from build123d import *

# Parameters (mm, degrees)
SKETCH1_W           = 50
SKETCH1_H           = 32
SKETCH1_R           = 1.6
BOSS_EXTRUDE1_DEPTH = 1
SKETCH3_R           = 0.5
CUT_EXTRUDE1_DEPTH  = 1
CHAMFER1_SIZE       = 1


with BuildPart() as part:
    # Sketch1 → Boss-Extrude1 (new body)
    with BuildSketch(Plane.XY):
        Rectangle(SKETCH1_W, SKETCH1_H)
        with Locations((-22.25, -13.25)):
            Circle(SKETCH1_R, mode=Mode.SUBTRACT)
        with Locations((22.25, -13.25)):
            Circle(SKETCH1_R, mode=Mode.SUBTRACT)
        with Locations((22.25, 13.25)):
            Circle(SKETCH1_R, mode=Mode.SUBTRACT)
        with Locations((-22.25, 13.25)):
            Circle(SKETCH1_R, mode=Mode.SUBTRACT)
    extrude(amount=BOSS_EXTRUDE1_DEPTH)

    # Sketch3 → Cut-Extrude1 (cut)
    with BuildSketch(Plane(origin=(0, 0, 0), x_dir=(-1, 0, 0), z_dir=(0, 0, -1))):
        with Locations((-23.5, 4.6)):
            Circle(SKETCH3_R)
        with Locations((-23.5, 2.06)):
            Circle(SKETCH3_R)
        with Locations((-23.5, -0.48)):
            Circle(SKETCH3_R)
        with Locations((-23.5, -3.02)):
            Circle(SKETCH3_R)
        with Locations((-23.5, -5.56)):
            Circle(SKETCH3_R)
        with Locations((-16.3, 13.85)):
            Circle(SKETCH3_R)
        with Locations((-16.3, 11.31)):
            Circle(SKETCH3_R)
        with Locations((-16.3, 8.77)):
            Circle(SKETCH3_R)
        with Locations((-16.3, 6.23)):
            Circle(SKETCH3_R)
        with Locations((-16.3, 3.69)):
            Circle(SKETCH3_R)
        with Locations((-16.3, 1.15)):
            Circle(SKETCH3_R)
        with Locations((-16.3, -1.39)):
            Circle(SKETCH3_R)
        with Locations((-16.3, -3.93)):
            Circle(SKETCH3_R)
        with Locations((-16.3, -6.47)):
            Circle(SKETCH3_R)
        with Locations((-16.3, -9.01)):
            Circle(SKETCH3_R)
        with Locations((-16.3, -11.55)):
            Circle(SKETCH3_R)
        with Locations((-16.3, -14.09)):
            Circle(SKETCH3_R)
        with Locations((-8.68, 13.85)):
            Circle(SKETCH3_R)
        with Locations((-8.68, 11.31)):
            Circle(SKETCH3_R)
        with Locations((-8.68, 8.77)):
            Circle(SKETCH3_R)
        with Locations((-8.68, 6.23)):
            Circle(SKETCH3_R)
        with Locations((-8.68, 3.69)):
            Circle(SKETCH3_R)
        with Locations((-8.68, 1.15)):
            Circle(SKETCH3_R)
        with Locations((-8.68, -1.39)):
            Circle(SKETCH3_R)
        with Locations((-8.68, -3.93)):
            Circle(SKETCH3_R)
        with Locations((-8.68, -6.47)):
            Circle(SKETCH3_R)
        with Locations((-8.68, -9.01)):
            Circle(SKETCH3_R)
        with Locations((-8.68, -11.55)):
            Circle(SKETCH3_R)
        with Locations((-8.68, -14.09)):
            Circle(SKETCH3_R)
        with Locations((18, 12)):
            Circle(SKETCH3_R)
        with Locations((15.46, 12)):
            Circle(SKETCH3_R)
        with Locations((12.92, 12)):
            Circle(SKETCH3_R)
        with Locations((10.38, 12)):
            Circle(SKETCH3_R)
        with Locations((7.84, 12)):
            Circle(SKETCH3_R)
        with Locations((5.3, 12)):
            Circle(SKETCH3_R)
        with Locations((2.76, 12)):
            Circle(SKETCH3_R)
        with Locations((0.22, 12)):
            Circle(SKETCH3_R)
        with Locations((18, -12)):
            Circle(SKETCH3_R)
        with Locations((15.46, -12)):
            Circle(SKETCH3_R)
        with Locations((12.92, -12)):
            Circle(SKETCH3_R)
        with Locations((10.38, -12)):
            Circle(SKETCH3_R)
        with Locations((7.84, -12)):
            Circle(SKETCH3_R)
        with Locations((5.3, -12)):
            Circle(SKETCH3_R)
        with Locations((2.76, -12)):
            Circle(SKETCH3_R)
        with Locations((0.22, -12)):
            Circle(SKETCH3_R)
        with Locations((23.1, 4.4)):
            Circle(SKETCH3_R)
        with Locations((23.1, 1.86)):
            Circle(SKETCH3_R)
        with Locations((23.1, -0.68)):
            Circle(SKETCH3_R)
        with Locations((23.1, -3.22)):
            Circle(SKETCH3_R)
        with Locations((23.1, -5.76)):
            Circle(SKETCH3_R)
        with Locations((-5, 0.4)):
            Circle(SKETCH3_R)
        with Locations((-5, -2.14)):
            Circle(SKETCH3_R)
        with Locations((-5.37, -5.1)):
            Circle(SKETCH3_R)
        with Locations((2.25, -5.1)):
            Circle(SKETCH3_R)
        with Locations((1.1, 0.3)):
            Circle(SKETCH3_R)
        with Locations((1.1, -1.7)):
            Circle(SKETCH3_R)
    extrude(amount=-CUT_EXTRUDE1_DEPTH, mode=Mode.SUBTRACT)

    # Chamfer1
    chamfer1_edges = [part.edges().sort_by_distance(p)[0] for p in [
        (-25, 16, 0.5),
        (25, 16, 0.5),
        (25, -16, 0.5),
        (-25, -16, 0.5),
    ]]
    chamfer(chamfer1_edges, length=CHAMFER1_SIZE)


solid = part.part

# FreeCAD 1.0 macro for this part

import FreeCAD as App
import Part
import Sketcher

V = App.Vector
Q = App.Units.Quantity


def edges_at(feature, points):
    """Names of the edges that pass closest to the given points."""
    edges = feature.Shape.Edges
    near = lambda p: min(range(len(edges)), key=lambda i: edges[i].distToShape(Part.Vertex(*p))[0])
    return sorted({f"Edge{near(p) + 1}" for p in points})

doc = App.newDocument("Part")
body = doc.addObject("PartDesign::Body", "Body")

sketch1 = body.newObject("Sketcher::SketchObject", "Sketch")
sketch1.AttachmentSupport = (doc.getObject("XY_Plane"), [""])
sketch1.MapMode = "FlatFace"
sketch1.addGeometry(Part.LineSegment(V(-25, 16, 0), V(-25, -16, 0)), False)
sketch1.addGeometry(Part.LineSegment(V(-25, -16, 0), V(25, -16, 0)), False)
sketch1.addGeometry(Part.LineSegment(V(25, -16, 0), V(25, 16, 0)), False)
sketch1.addGeometry(Part.LineSegment(V(25, 16, 0), V(-25, 16, 0)), False)
sketch1.addGeometry(Part.Circle(V(-22.2, -13.2, 0), V(0, 0, 1), 1.6), False)
sketch1.addGeometry(Part.Circle(V(22.2, -13.2, 0), V(0, 0, 1), 1.6), False)
sketch1.addGeometry(Part.Circle(V(-22.2, 13.2, 0), V(0, 0, 1), 1.6), False)
sketch1.addGeometry(Part.Circle(V(22.2, 13.2, 0), V(0, 0, 1), 1.6), False)
sketch1.addConstraint(Sketcher.Constraint("Coincident", 0, 2, 1, 1))
sketch1.addConstraint(Sketcher.Constraint("Coincident", 1, 2, 2, 1))
sketch1.addConstraint(Sketcher.Constraint("Coincident", 2, 2, 3, 1))
sketch1.addConstraint(Sketcher.Constraint("Coincident", 3, 2, 0, 1))
sketch1.addConstraint(Sketcher.Constraint("Vertical", 0))
sketch1.addConstraint(Sketcher.Constraint("Horizontal", 1))
sketch1.addConstraint(Sketcher.Constraint("Vertical", 2))
sketch1.addConstraint(Sketcher.Constraint("Horizontal", 3))
sketch1.addConstraint(Sketcher.Constraint("Equal", 4, 5))
sketch1.addConstraint(Sketcher.Constraint("Equal", 5, 6))
sketch1.addConstraint(Sketcher.Constraint("Equal", 6, 7))
sketch1.addConstraint(Sketcher.Constraint("Symmetric", 5, 3, 6, 3, -1, 1))
sketch1.addConstraint(Sketcher.Constraint("Symmetric", 4, 3, 7, 3, -1, 1))
sketch1.addConstraint(Sketcher.Constraint("Symmetric", 0, 2, 2, 2, -1, 1))
sketch1.addConstraint(Sketcher.Constraint("Symmetric", 4, 3, 5, 3, -2))
sketch1.addConstraint(Sketcher.Constraint("Diameter", 4, Q("3.2 mm")))
sketch1.addConstraint(Sketcher.Constraint("DistanceX", 1, 1, 1, 2, Q("50 mm")))
sketch1.addConstraint(Sketcher.Constraint("DistanceY", 0, 2, 0, 1, Q("32 mm")))
sketch1.addConstraint(Sketcher.Constraint("DistanceX", 4, 3, 5, 3, Q("44.5 mm")))
sketch1.addConstraint(Sketcher.Constraint("DistanceY", 4, 3, 6, 3, Q("26.5 mm")))
pad1 = body.newObject("PartDesign::Pad", "Pad")
pad1.Profile = sketch1
pad1.Length = 1

sketch2 = body.newObject("Sketcher::SketchObject", "Sketch001")
sketch2.AttachmentSupport = (doc.getObject("XY_Plane"), [""])
sketch2.MapMode = "FlatFace"
sketch2.addGeometry(Part.Circle(V(23.5, 4.6, 0), V(0, 0, 1), 0.5), False)
sketch2.addGeometry(Part.Circle(V(23.5, 2.1, 0), V(0, 0, 1), 0.5), False)
sketch2.addGeometry(Part.Circle(V(23.5, -0.5, 0), V(0, 0, 1), 0.5), False)
sketch2.addGeometry(Part.Circle(V(23.5, -3, 0), V(0, 0, 1), 0.5), False)
sketch2.addGeometry(Part.Circle(V(23.5, -5.6, 0), V(0, 0, 1), 0.5), False)
sketch2.addGeometry(Part.Circle(V(16.3, 13.8, 0), V(0, 0, 1), 0.5), False)
sketch2.addGeometry(Part.Circle(V(16.3, 11.3, 0), V(0, 0, 1), 0.5), False)
sketch2.addGeometry(Part.Circle(V(16.3, 8.8, 0), V(0, 0, 1), 0.5), False)
sketch2.addGeometry(Part.Circle(V(16.3, 6.2, 0), V(0, 0, 1), 0.5), False)
sketch2.addGeometry(Part.Circle(V(16.3, 3.7, 0), V(0, 0, 1), 0.5), False)
sketch2.addGeometry(Part.Circle(V(16.3, 1.1, 0), V(0, 0, 1), 0.5), False)
sketch2.addGeometry(Part.Circle(V(16.3, -1.4, 0), V(0, 0, 1), 0.5), False)
sketch2.addGeometry(Part.Circle(V(16.3, -3.9, 0), V(0, 0, 1), 0.5), False)
sketch2.addGeometry(Part.Circle(V(16.3, -6.5, 0), V(0, 0, 1), 0.5), False)
sketch2.addGeometry(Part.Circle(V(16.3, -9, 0), V(0, 0, 1), 0.5), False)
sketch2.addGeometry(Part.Circle(V(16.3, -11.6, 0), V(0, 0, 1), 0.5), False)
sketch2.addGeometry(Part.Circle(V(16.3, -14.1, 0), V(0, 0, 1), 0.5), False)
sketch2.addGeometry(Part.Circle(V(8.7, 13.8, 0), V(0, 0, 1), 0.5), False)
sketch2.addGeometry(Part.Circle(V(8.7, 11.3, 0), V(0, 0, 1), 0.5), False)
sketch2.addGeometry(Part.Circle(V(8.7, 8.8, 0), V(0, 0, 1), 0.5), False)
sketch2.addGeometry(Part.Circle(V(8.7, 6.2, 0), V(0, 0, 1), 0.5), False)
sketch2.addGeometry(Part.Circle(V(8.7, 3.7, 0), V(0, 0, 1), 0.5), False)
sketch2.addGeometry(Part.Circle(V(8.7, 1.1, 0), V(0, 0, 1), 0.5), False)
sketch2.addGeometry(Part.Circle(V(8.7, -1.4, 0), V(0, 0, 1), 0.5), False)
sketch2.addGeometry(Part.Circle(V(8.7, -3.9, 0), V(0, 0, 1), 0.5), False)
sketch2.addGeometry(Part.Circle(V(8.7, -6.5, 0), V(0, 0, 1), 0.5), False)
sketch2.addGeometry(Part.Circle(V(8.7, -9, 0), V(0, 0, 1), 0.5), False)
sketch2.addGeometry(Part.Circle(V(8.7, -11.6, 0), V(0, 0, 1), 0.5), False)
sketch2.addGeometry(Part.Circle(V(8.7, -14.1, 0), V(0, 0, 1), 0.5), False)
sketch2.addGeometry(Part.Circle(V(-18, 12, 0), V(0, 0, 1), 0.5), False)
sketch2.addGeometry(Part.Circle(V(-15.5, 12, 0), V(0, 0, 1), 0.5), False)
sketch2.addGeometry(Part.Circle(V(-12.9, 12, 0), V(0, 0, 1), 0.5), False)
sketch2.addGeometry(Part.Circle(V(-10.4, 12, 0), V(0, 0, 1), 0.5), False)
sketch2.addGeometry(Part.Circle(V(-7.8, 12, 0), V(0, 0, 1), 0.5), False)
sketch2.addGeometry(Part.Circle(V(-5.3, 12, 0), V(0, 0, 1), 0.5), False)
sketch2.addGeometry(Part.Circle(V(-2.8, 12, 0), V(0, 0, 1), 0.5), False)
sketch2.addGeometry(Part.Circle(V(-0.2, 12, 0), V(0, 0, 1), 0.5), False)
sketch2.addGeometry(Part.Circle(V(-18, -12, 0), V(0, 0, 1), 0.5), False)
sketch2.addGeometry(Part.Circle(V(-15.5, -12, 0), V(0, 0, 1), 0.5), False)
sketch2.addGeometry(Part.Circle(V(-12.9, -12, 0), V(0, 0, 1), 0.5), False)
sketch2.addGeometry(Part.Circle(V(-10.4, -12, 0), V(0, 0, 1), 0.5), False)
sketch2.addGeometry(Part.Circle(V(-7.8, -12, 0), V(0, 0, 1), 0.5), False)
sketch2.addGeometry(Part.Circle(V(-5.3, -12, 0), V(0, 0, 1), 0.5), False)
sketch2.addGeometry(Part.Circle(V(-2.8, -12, 0), V(0, 0, 1), 0.5), False)
sketch2.addGeometry(Part.Circle(V(-0.2, -12, 0), V(0, 0, 1), 0.5), False)
sketch2.addGeometry(Part.Circle(V(-23.1, 4.4, 0), V(0, 0, 1), 0.5), False)
sketch2.addGeometry(Part.Circle(V(-23.1, 1.9, 0), V(0, 0, 1), 0.5), False)
sketch2.addGeometry(Part.Circle(V(-23.1, -0.7, 0), V(0, 0, 1), 0.5), False)
sketch2.addGeometry(Part.Circle(V(-23.1, -3.2, 0), V(0, 0, 1), 0.5), False)
sketch2.addGeometry(Part.Circle(V(-23.1, -5.8, 0), V(0, 0, 1), 0.5), False)
sketch2.addGeometry(Part.Circle(V(5, 0.4, 0), V(0, 0, 1), 0.5), False)
sketch2.addGeometry(Part.Circle(V(5, -2.1, 0), V(0, 0, 1), 0.5), False)
sketch2.addGeometry(Part.Circle(V(5.4, -5.1, 0), V(0, 0, 1), 0.5), False)
sketch2.addGeometry(Part.Circle(V(-2.2, -5.1, 0), V(0, 0, 1), 0.5), False)
sketch2.addGeometry(Part.Circle(V(-1.1, 0.3, 0), V(0, 0, 1), 0.5), False)
sketch2.addGeometry(Part.Circle(V(-1.1, -1.7, 0), V(0, 0, 1), 0.5), False)
sketch2.addConstraint(Sketcher.Constraint("Equal", 0, 1))
sketch2.addConstraint(Sketcher.Constraint("Equal", 1, 2))
sketch2.addConstraint(Sketcher.Constraint("Equal", 2, 3))
sketch2.addConstraint(Sketcher.Constraint("Equal", 3, 4))
sketch2.addConstraint(Sketcher.Constraint("Equal", 4, 5))
sketch2.addConstraint(Sketcher.Constraint("Equal", 5, 6))
sketch2.addConstraint(Sketcher.Constraint("Equal", 6, 7))
sketch2.addConstraint(Sketcher.Constraint("Equal", 7, 8))
sketch2.addConstraint(Sketcher.Constraint("Equal", 8, 9))
sketch2.addConstraint(Sketcher.Constraint("Equal", 9, 10))
sketch2.addConstraint(Sketcher.Constraint("Equal", 10, 11))
sketch2.addConstraint(Sketcher.Constraint("Equal", 11, 12))
sketch2.addConstraint(Sketcher.Constraint("Equal", 12, 13))
sketch2.addConstraint(Sketcher.Constraint("Equal", 13, 14))
sketch2.addConstraint(Sketcher.Constraint("Equal", 14, 15))
sketch2.addConstraint(Sketcher.Constraint("Equal", 15, 16))
sketch2.addConstraint(Sketcher.Constraint("Equal", 16, 17))
sketch2.addConstraint(Sketcher.Constraint("Equal", 17, 18))
sketch2.addConstraint(Sketcher.Constraint("Equal", 18, 19))
sketch2.addConstraint(Sketcher.Constraint("Equal", 19, 20))
sketch2.addConstraint(Sketcher.Constraint("Equal", 20, 21))
sketch2.addConstraint(Sketcher.Constraint("Equal", 21, 22))
sketch2.addConstraint(Sketcher.Constraint("Equal", 22, 23))
sketch2.addConstraint(Sketcher.Constraint("Equal", 23, 24))
sketch2.addConstraint(Sketcher.Constraint("Equal", 24, 25))
sketch2.addConstraint(Sketcher.Constraint("Equal", 25, 26))
sketch2.addConstraint(Sketcher.Constraint("Equal", 26, 27))
sketch2.addConstraint(Sketcher.Constraint("Equal", 27, 28))
sketch2.addConstraint(Sketcher.Constraint("Equal", 28, 29))
sketch2.addConstraint(Sketcher.Constraint("Equal", 29, 30))
sketch2.addConstraint(Sketcher.Constraint("Equal", 30, 31))
sketch2.addConstraint(Sketcher.Constraint("Equal", 31, 32))
sketch2.addConstraint(Sketcher.Constraint("Equal", 32, 33))
sketch2.addConstraint(Sketcher.Constraint("Equal", 33, 34))
sketch2.addConstraint(Sketcher.Constraint("Equal", 34, 35))
sketch2.addConstraint(Sketcher.Constraint("Equal", 35, 36))
sketch2.addConstraint(Sketcher.Constraint("Equal", 36, 37))
sketch2.addConstraint(Sketcher.Constraint("Equal", 37, 38))
sketch2.addConstraint(Sketcher.Constraint("Equal", 38, 39))
sketch2.addConstraint(Sketcher.Constraint("Equal", 39, 40))
sketch2.addConstraint(Sketcher.Constraint("Equal", 40, 41))
sketch2.addConstraint(Sketcher.Constraint("Equal", 41, 42))
sketch2.addConstraint(Sketcher.Constraint("Equal", 42, 43))
sketch2.addConstraint(Sketcher.Constraint("Equal", 43, 44))
sketch2.addConstraint(Sketcher.Constraint("Equal", 44, 45))
sketch2.addConstraint(Sketcher.Constraint("Equal", 45, 46))
sketch2.addConstraint(Sketcher.Constraint("Equal", 46, 47))
sketch2.addConstraint(Sketcher.Constraint("Equal", 47, 48))
sketch2.addConstraint(Sketcher.Constraint("Equal", 48, 49))
sketch2.addConstraint(Sketcher.Constraint("Equal", 49, 50))
sketch2.addConstraint(Sketcher.Constraint("Equal", 50, 51))
sketch2.addConstraint(Sketcher.Constraint("Equal", 51, 52))
sketch2.addConstraint(Sketcher.Constraint("Equal", 52, 53))
sketch2.addConstraint(Sketcher.Constraint("Equal", 53, 54))
sketch2.addConstraint(Sketcher.Constraint("Equal", 54, 55))
sketch2.addConstraint(Sketcher.Constraint("Symmetric", 29, 3, 37, 3, -1))
sketch2.addConstraint(Sketcher.Constraint("Symmetric", 30, 3, 38, 3, -1))
sketch2.addConstraint(Sketcher.Constraint("Symmetric", 31, 3, 39, 3, -1))
sketch2.addConstraint(Sketcher.Constraint("Symmetric", 32, 3, 40, 3, -1))
sketch2.addConstraint(Sketcher.Constraint("Symmetric", 33, 3, 41, 3, -1))
sketch2.addConstraint(Sketcher.Constraint("Symmetric", 34, 3, 42, 3, -1))
sketch2.addConstraint(Sketcher.Constraint("Symmetric", 35, 3, 43, 3, -1))
sketch2.addConstraint(Sketcher.Constraint("Symmetric", 36, 3, 44, 3, -1))
sketch2.addConstraint(Sketcher.Constraint("Horizontal", 5, 3, 17, 3))
sketch2.addConstraint(Sketcher.Constraint("Horizontal", 6, 3, 18, 3))
sketch2.addConstraint(Sketcher.Constraint("Horizontal", 7, 3, 19, 3))
sketch2.addConstraint(Sketcher.Constraint("Horizontal", 8, 3, 20, 3))
sketch2.addConstraint(Sketcher.Constraint("Horizontal", 9, 3, 21, 3))
sketch2.addConstraint(Sketcher.Constraint("Horizontal", 10, 3, 22, 3))
sketch2.addConstraint(Sketcher.Constraint("Horizontal", 11, 3, 23, 3))
sketch2.addConstraint(Sketcher.Constraint("Horizontal", 12, 3, 24, 3))
sketch2.addConstraint(Sketcher.Constraint("Horizontal", 13, 3, 25, 3))
sketch2.addConstraint(Sketcher.Constraint("Horizontal", 14, 3, 26, 3))
sketch2.addConstraint(Sketcher.Constraint("Horizontal", 15, 3, 27, 3))
sketch2.addConstraint(Sketcher.Constraint("Horizontal", 16, 3, 28, 3))
sketch2.addConstraint(Sketcher.Constraint("Horizontal", 29, 3, 30, 3))
sketch2.addConstraint(Sketcher.Constraint("Horizontal", 30, 3, 31, 3))
sketch2.addConstraint(Sketcher.Constraint("Horizontal", 31, 3, 32, 3))
sketch2.addConstraint(Sketcher.Constraint("Horizontal", 32, 3, 33, 3))
sketch2.addConstraint(Sketcher.Constraint("Horizontal", 33, 3, 34, 3))
sketch2.addConstraint(Sketcher.Constraint("Horizontal", 34, 3, 35, 3))
sketch2.addConstraint(Sketcher.Constraint("Horizontal", 35, 3, 36, 3))
sketch2.addConstraint(Sketcher.Constraint("Horizontal", 52, 3, 53, 3))
sketch2.addConstraint(Sketcher.Constraint("Vertical", 0, 3, 1, 3))
sketch2.addConstraint(Sketcher.Constraint("Vertical", 1, 3, 2, 3))
sketch2.addConstraint(Sketcher.Constraint("Vertical", 2, 3, 3, 3))
sketch2.addConstraint(Sketcher.Constraint("Vertical", 3, 3, 4, 3))
sketch2.addConstraint(Sketcher.Constraint("Vertical", 5, 3, 6, 3))
sketch2.addConstraint(Sketcher.Constraint("Vertical", 6, 3, 7, 3))
sketch2.addConstraint(Sketcher.Constraint("Vertical", 7, 3, 8, 3))
sketch2.addConstraint(Sketcher.Constraint("Vertical", 8, 3, 9, 3))
sketch2.addConstraint(Sketcher.Constraint("Vertical", 9, 3, 10, 3))
sketch2.addConstraint(Sketcher.Constraint("Vertical", 10, 3, 11, 3))
sketch2.addConstraint(Sketcher.Constraint("Vertical", 11, 3, 12, 3))
sketch2.addConstraint(Sketcher.Constraint("Vertical", 12, 3, 13, 3))
sketch2.addConstraint(Sketcher.Constraint("Vertical", 13, 3, 14, 3))
sketch2.addConstraint(Sketcher.Constraint("Vertical", 14, 3, 15, 3))
sketch2.addConstraint(Sketcher.Constraint("Vertical", 15, 3, 16, 3))
sketch2.addConstraint(Sketcher.Constraint("Vertical", 17, 3, 18, 3))
sketch2.addConstraint(Sketcher.Constraint("Vertical", 18, 3, 19, 3))
sketch2.addConstraint(Sketcher.Constraint("Vertical", 19, 3, 20, 3))
sketch2.addConstraint(Sketcher.Constraint("Vertical", 20, 3, 21, 3))
sketch2.addConstraint(Sketcher.Constraint("Vertical", 21, 3, 22, 3))
sketch2.addConstraint(Sketcher.Constraint("Vertical", 22, 3, 23, 3))
sketch2.addConstraint(Sketcher.Constraint("Vertical", 23, 3, 24, 3))
sketch2.addConstraint(Sketcher.Constraint("Vertical", 24, 3, 25, 3))
sketch2.addConstraint(Sketcher.Constraint("Vertical", 25, 3, 26, 3))
sketch2.addConstraint(Sketcher.Constraint("Vertical", 26, 3, 27, 3))
sketch2.addConstraint(Sketcher.Constraint("Vertical", 27, 3, 28, 3))
sketch2.addConstraint(Sketcher.Constraint("Vertical", 45, 3, 46, 3))
sketch2.addConstraint(Sketcher.Constraint("Vertical", 46, 3, 47, 3))
sketch2.addConstraint(Sketcher.Constraint("Vertical", 47, 3, 48, 3))
sketch2.addConstraint(Sketcher.Constraint("Vertical", 48, 3, 49, 3))
sketch2.addConstraint(Sketcher.Constraint("Vertical", 50, 3, 51, 3))
sketch2.addConstraint(Sketcher.Constraint("Vertical", 54, 3, 55, 3))
sketch2.addConstraint(Sketcher.Constraint("Diameter", 0, Q("1 mm")))
sketch2.addConstraint(Sketcher.Constraint("DistanceX", 29, 3, -1, 1, Q("18 mm")))
sketch2.addConstraint(Sketcher.Constraint("DistanceY", -1, 1, 29, 3, Q("12 mm")))
sketch2.addConstraint(Sketcher.Constraint("DistanceX", -1, 1, 50, 3, Q("5 mm")))
sketch2.addConstraint(Sketcher.Constraint("DistanceY", 55, 3, 54, 3, Q("2 mm")))
sketch2.addConstraint(Sketcher.Constraint("DistanceX", -1, 1, 0, 3, Q("23.5 mm")))
sketch2.addConstraint(Sketcher.Constraint("DistanceY", -1, 1, 0, 3, Q("4.6 mm")))
sketch2.addConstraint(Sketcher.Constraint("DistanceX", -1, 1, 5, 3, Q("16.3 mm")))
sketch2.addConstraint(Sketcher.Constraint("DistanceX", 34, 3, -1, 1, Q("5.3 mm")))
sketch2.addConstraint(Sketcher.Constraint("DistanceX", 45, 3, -1, 1, Q("23.1 mm")))
sketch2.addConstraint(Sketcher.Constraint("DistanceY", -1, 1, 45, 3, Q("4.4 mm")))
sketch2.addConstraint(Sketcher.Constraint("DistanceY", -1, 1, 50, 3, Q("0.4 mm")))
sketch2.addConstraint(Sketcher.Constraint("DistanceY", 52, 3, -1, 1, Q("5.1 mm")))
sketch2.addConstraint(Sketcher.Constraint("DistanceX", 54, 3, -1, 1, Q("1.1 mm")))
sketch2.addConstraint(Sketcher.Constraint("DistanceY", -1, 1, 54, 3, Q("0.3 mm")))
sketch2.addConstraint(Sketcher.Constraint("DistanceX", 31, 3, 18, 3, Q("21.6 mm")))
sketch2.addConstraint(Sketcher.Constraint("DistanceX", 36, 3, 18, 3, Q("8.9 mm")))
sketch2.addConstraint(Sketcher.Constraint("DistanceY", -1, 1, 1, 3, Q("2.06 mm")))
sketch2.addConstraint(Sketcher.Constraint("DistanceY", 2, 3, -1, 1, Q("0.48 mm")))
sketch2.addConstraint(Sketcher.Constraint("DistanceY", 3, 3, -1, 1, Q("3.02 mm")))
sketch2.addConstraint(Sketcher.Constraint("DistanceY", 4, 3, -1, 1, Q("5.56 mm")))
sketch2.addConstraint(Sketcher.Constraint("DistanceY", -1, 1, 5, 3, Q("13.85 mm")))
sketch2.addConstraint(Sketcher.Constraint("DistanceY", -1, 1, 6, 3, Q("11.31 mm")))
sketch2.addConstraint(Sketcher.Constraint("DistanceY", -1, 1, 7, 3, Q("8.77 mm")))
sketch2.addConstraint(Sketcher.Constraint("DistanceY", -1, 1, 8, 3, Q("6.23 mm")))
sketch2.addConstraint(Sketcher.Constraint("DistanceY", -1, 1, 9, 3, Q("3.69 mm")))
sketch2.addConstraint(Sketcher.Constraint("DistanceY", -1, 1, 10, 3, Q("1.15 mm")))
sketch2.addConstraint(Sketcher.Constraint("DistanceY", 11, 3, -1, 1, Q("1.39 mm")))
sketch2.addConstraint(Sketcher.Constraint("DistanceY", 12, 3, -1, 1, Q("3.93 mm")))
sketch2.addConstraint(Sketcher.Constraint("DistanceY", 13, 3, -1, 1, Q("6.47 mm")))
sketch2.addConstraint(Sketcher.Constraint("DistanceY", 14, 3, -1, 1, Q("9.01 mm")))
sketch2.addConstraint(Sketcher.Constraint("DistanceY", 15, 3, -1, 1, Q("11.55 mm")))
sketch2.addConstraint(Sketcher.Constraint("DistanceY", 16, 3, -1, 1, Q("14.09 mm")))
sketch2.addConstraint(Sketcher.Constraint("DistanceX", -1, 1, 17, 3, Q("8.68 mm")))
sketch2.addConstraint(Sketcher.Constraint("DistanceX", 30, 3, -1, 1, Q("15.46 mm")))
sketch2.addConstraint(Sketcher.Constraint("DistanceX", 32, 3, -1, 1, Q("10.38 mm")))
sketch2.addConstraint(Sketcher.Constraint("DistanceX", 33, 3, -1, 1, Q("7.84 mm")))
sketch2.addConstraint(Sketcher.Constraint("DistanceX", 35, 3, -1, 1, Q("2.76 mm")))
sketch2.addConstraint(Sketcher.Constraint("DistanceY", -1, 1, 46, 3, Q("1.86 mm")))
sketch2.addConstraint(Sketcher.Constraint("DistanceY", 47, 3, -1, 1, Q("0.68 mm")))
sketch2.addConstraint(Sketcher.Constraint("DistanceY", 48, 3, -1, 1, Q("3.22 mm")))
sketch2.addConstraint(Sketcher.Constraint("DistanceY", 49, 3, -1, 1, Q("5.76 mm")))
sketch2.addConstraint(Sketcher.Constraint("DistanceY", 51, 3, -1, 1, Q("2.14 mm")))
sketch2.addConstraint(Sketcher.Constraint("DistanceX", -1, 1, 52, 3, Q("5.37 mm")))
sketch2.addConstraint(Sketcher.Constraint("DistanceX", 53, 3, -1, 1, Q("2.25 mm")))
pocket1 = body.newObject("PartDesign::Pocket", "Pocket")
pocket1.Profile = sketch2
pocket1.Length = 1
pocket1.Reversed = True
doc.recompute()

chamfer = body.newObject("PartDesign::Chamfer", "Chamfer")
chamfer.Base = (pocket1, edges_at(pocket1, [
    (-25, 16, 0.5),
    (25, 16, 0.5),
    (25, -16, 0.5),
    (-25, -16, 0.5),
]))
chamfer.Size = 1

doc.recompute()
